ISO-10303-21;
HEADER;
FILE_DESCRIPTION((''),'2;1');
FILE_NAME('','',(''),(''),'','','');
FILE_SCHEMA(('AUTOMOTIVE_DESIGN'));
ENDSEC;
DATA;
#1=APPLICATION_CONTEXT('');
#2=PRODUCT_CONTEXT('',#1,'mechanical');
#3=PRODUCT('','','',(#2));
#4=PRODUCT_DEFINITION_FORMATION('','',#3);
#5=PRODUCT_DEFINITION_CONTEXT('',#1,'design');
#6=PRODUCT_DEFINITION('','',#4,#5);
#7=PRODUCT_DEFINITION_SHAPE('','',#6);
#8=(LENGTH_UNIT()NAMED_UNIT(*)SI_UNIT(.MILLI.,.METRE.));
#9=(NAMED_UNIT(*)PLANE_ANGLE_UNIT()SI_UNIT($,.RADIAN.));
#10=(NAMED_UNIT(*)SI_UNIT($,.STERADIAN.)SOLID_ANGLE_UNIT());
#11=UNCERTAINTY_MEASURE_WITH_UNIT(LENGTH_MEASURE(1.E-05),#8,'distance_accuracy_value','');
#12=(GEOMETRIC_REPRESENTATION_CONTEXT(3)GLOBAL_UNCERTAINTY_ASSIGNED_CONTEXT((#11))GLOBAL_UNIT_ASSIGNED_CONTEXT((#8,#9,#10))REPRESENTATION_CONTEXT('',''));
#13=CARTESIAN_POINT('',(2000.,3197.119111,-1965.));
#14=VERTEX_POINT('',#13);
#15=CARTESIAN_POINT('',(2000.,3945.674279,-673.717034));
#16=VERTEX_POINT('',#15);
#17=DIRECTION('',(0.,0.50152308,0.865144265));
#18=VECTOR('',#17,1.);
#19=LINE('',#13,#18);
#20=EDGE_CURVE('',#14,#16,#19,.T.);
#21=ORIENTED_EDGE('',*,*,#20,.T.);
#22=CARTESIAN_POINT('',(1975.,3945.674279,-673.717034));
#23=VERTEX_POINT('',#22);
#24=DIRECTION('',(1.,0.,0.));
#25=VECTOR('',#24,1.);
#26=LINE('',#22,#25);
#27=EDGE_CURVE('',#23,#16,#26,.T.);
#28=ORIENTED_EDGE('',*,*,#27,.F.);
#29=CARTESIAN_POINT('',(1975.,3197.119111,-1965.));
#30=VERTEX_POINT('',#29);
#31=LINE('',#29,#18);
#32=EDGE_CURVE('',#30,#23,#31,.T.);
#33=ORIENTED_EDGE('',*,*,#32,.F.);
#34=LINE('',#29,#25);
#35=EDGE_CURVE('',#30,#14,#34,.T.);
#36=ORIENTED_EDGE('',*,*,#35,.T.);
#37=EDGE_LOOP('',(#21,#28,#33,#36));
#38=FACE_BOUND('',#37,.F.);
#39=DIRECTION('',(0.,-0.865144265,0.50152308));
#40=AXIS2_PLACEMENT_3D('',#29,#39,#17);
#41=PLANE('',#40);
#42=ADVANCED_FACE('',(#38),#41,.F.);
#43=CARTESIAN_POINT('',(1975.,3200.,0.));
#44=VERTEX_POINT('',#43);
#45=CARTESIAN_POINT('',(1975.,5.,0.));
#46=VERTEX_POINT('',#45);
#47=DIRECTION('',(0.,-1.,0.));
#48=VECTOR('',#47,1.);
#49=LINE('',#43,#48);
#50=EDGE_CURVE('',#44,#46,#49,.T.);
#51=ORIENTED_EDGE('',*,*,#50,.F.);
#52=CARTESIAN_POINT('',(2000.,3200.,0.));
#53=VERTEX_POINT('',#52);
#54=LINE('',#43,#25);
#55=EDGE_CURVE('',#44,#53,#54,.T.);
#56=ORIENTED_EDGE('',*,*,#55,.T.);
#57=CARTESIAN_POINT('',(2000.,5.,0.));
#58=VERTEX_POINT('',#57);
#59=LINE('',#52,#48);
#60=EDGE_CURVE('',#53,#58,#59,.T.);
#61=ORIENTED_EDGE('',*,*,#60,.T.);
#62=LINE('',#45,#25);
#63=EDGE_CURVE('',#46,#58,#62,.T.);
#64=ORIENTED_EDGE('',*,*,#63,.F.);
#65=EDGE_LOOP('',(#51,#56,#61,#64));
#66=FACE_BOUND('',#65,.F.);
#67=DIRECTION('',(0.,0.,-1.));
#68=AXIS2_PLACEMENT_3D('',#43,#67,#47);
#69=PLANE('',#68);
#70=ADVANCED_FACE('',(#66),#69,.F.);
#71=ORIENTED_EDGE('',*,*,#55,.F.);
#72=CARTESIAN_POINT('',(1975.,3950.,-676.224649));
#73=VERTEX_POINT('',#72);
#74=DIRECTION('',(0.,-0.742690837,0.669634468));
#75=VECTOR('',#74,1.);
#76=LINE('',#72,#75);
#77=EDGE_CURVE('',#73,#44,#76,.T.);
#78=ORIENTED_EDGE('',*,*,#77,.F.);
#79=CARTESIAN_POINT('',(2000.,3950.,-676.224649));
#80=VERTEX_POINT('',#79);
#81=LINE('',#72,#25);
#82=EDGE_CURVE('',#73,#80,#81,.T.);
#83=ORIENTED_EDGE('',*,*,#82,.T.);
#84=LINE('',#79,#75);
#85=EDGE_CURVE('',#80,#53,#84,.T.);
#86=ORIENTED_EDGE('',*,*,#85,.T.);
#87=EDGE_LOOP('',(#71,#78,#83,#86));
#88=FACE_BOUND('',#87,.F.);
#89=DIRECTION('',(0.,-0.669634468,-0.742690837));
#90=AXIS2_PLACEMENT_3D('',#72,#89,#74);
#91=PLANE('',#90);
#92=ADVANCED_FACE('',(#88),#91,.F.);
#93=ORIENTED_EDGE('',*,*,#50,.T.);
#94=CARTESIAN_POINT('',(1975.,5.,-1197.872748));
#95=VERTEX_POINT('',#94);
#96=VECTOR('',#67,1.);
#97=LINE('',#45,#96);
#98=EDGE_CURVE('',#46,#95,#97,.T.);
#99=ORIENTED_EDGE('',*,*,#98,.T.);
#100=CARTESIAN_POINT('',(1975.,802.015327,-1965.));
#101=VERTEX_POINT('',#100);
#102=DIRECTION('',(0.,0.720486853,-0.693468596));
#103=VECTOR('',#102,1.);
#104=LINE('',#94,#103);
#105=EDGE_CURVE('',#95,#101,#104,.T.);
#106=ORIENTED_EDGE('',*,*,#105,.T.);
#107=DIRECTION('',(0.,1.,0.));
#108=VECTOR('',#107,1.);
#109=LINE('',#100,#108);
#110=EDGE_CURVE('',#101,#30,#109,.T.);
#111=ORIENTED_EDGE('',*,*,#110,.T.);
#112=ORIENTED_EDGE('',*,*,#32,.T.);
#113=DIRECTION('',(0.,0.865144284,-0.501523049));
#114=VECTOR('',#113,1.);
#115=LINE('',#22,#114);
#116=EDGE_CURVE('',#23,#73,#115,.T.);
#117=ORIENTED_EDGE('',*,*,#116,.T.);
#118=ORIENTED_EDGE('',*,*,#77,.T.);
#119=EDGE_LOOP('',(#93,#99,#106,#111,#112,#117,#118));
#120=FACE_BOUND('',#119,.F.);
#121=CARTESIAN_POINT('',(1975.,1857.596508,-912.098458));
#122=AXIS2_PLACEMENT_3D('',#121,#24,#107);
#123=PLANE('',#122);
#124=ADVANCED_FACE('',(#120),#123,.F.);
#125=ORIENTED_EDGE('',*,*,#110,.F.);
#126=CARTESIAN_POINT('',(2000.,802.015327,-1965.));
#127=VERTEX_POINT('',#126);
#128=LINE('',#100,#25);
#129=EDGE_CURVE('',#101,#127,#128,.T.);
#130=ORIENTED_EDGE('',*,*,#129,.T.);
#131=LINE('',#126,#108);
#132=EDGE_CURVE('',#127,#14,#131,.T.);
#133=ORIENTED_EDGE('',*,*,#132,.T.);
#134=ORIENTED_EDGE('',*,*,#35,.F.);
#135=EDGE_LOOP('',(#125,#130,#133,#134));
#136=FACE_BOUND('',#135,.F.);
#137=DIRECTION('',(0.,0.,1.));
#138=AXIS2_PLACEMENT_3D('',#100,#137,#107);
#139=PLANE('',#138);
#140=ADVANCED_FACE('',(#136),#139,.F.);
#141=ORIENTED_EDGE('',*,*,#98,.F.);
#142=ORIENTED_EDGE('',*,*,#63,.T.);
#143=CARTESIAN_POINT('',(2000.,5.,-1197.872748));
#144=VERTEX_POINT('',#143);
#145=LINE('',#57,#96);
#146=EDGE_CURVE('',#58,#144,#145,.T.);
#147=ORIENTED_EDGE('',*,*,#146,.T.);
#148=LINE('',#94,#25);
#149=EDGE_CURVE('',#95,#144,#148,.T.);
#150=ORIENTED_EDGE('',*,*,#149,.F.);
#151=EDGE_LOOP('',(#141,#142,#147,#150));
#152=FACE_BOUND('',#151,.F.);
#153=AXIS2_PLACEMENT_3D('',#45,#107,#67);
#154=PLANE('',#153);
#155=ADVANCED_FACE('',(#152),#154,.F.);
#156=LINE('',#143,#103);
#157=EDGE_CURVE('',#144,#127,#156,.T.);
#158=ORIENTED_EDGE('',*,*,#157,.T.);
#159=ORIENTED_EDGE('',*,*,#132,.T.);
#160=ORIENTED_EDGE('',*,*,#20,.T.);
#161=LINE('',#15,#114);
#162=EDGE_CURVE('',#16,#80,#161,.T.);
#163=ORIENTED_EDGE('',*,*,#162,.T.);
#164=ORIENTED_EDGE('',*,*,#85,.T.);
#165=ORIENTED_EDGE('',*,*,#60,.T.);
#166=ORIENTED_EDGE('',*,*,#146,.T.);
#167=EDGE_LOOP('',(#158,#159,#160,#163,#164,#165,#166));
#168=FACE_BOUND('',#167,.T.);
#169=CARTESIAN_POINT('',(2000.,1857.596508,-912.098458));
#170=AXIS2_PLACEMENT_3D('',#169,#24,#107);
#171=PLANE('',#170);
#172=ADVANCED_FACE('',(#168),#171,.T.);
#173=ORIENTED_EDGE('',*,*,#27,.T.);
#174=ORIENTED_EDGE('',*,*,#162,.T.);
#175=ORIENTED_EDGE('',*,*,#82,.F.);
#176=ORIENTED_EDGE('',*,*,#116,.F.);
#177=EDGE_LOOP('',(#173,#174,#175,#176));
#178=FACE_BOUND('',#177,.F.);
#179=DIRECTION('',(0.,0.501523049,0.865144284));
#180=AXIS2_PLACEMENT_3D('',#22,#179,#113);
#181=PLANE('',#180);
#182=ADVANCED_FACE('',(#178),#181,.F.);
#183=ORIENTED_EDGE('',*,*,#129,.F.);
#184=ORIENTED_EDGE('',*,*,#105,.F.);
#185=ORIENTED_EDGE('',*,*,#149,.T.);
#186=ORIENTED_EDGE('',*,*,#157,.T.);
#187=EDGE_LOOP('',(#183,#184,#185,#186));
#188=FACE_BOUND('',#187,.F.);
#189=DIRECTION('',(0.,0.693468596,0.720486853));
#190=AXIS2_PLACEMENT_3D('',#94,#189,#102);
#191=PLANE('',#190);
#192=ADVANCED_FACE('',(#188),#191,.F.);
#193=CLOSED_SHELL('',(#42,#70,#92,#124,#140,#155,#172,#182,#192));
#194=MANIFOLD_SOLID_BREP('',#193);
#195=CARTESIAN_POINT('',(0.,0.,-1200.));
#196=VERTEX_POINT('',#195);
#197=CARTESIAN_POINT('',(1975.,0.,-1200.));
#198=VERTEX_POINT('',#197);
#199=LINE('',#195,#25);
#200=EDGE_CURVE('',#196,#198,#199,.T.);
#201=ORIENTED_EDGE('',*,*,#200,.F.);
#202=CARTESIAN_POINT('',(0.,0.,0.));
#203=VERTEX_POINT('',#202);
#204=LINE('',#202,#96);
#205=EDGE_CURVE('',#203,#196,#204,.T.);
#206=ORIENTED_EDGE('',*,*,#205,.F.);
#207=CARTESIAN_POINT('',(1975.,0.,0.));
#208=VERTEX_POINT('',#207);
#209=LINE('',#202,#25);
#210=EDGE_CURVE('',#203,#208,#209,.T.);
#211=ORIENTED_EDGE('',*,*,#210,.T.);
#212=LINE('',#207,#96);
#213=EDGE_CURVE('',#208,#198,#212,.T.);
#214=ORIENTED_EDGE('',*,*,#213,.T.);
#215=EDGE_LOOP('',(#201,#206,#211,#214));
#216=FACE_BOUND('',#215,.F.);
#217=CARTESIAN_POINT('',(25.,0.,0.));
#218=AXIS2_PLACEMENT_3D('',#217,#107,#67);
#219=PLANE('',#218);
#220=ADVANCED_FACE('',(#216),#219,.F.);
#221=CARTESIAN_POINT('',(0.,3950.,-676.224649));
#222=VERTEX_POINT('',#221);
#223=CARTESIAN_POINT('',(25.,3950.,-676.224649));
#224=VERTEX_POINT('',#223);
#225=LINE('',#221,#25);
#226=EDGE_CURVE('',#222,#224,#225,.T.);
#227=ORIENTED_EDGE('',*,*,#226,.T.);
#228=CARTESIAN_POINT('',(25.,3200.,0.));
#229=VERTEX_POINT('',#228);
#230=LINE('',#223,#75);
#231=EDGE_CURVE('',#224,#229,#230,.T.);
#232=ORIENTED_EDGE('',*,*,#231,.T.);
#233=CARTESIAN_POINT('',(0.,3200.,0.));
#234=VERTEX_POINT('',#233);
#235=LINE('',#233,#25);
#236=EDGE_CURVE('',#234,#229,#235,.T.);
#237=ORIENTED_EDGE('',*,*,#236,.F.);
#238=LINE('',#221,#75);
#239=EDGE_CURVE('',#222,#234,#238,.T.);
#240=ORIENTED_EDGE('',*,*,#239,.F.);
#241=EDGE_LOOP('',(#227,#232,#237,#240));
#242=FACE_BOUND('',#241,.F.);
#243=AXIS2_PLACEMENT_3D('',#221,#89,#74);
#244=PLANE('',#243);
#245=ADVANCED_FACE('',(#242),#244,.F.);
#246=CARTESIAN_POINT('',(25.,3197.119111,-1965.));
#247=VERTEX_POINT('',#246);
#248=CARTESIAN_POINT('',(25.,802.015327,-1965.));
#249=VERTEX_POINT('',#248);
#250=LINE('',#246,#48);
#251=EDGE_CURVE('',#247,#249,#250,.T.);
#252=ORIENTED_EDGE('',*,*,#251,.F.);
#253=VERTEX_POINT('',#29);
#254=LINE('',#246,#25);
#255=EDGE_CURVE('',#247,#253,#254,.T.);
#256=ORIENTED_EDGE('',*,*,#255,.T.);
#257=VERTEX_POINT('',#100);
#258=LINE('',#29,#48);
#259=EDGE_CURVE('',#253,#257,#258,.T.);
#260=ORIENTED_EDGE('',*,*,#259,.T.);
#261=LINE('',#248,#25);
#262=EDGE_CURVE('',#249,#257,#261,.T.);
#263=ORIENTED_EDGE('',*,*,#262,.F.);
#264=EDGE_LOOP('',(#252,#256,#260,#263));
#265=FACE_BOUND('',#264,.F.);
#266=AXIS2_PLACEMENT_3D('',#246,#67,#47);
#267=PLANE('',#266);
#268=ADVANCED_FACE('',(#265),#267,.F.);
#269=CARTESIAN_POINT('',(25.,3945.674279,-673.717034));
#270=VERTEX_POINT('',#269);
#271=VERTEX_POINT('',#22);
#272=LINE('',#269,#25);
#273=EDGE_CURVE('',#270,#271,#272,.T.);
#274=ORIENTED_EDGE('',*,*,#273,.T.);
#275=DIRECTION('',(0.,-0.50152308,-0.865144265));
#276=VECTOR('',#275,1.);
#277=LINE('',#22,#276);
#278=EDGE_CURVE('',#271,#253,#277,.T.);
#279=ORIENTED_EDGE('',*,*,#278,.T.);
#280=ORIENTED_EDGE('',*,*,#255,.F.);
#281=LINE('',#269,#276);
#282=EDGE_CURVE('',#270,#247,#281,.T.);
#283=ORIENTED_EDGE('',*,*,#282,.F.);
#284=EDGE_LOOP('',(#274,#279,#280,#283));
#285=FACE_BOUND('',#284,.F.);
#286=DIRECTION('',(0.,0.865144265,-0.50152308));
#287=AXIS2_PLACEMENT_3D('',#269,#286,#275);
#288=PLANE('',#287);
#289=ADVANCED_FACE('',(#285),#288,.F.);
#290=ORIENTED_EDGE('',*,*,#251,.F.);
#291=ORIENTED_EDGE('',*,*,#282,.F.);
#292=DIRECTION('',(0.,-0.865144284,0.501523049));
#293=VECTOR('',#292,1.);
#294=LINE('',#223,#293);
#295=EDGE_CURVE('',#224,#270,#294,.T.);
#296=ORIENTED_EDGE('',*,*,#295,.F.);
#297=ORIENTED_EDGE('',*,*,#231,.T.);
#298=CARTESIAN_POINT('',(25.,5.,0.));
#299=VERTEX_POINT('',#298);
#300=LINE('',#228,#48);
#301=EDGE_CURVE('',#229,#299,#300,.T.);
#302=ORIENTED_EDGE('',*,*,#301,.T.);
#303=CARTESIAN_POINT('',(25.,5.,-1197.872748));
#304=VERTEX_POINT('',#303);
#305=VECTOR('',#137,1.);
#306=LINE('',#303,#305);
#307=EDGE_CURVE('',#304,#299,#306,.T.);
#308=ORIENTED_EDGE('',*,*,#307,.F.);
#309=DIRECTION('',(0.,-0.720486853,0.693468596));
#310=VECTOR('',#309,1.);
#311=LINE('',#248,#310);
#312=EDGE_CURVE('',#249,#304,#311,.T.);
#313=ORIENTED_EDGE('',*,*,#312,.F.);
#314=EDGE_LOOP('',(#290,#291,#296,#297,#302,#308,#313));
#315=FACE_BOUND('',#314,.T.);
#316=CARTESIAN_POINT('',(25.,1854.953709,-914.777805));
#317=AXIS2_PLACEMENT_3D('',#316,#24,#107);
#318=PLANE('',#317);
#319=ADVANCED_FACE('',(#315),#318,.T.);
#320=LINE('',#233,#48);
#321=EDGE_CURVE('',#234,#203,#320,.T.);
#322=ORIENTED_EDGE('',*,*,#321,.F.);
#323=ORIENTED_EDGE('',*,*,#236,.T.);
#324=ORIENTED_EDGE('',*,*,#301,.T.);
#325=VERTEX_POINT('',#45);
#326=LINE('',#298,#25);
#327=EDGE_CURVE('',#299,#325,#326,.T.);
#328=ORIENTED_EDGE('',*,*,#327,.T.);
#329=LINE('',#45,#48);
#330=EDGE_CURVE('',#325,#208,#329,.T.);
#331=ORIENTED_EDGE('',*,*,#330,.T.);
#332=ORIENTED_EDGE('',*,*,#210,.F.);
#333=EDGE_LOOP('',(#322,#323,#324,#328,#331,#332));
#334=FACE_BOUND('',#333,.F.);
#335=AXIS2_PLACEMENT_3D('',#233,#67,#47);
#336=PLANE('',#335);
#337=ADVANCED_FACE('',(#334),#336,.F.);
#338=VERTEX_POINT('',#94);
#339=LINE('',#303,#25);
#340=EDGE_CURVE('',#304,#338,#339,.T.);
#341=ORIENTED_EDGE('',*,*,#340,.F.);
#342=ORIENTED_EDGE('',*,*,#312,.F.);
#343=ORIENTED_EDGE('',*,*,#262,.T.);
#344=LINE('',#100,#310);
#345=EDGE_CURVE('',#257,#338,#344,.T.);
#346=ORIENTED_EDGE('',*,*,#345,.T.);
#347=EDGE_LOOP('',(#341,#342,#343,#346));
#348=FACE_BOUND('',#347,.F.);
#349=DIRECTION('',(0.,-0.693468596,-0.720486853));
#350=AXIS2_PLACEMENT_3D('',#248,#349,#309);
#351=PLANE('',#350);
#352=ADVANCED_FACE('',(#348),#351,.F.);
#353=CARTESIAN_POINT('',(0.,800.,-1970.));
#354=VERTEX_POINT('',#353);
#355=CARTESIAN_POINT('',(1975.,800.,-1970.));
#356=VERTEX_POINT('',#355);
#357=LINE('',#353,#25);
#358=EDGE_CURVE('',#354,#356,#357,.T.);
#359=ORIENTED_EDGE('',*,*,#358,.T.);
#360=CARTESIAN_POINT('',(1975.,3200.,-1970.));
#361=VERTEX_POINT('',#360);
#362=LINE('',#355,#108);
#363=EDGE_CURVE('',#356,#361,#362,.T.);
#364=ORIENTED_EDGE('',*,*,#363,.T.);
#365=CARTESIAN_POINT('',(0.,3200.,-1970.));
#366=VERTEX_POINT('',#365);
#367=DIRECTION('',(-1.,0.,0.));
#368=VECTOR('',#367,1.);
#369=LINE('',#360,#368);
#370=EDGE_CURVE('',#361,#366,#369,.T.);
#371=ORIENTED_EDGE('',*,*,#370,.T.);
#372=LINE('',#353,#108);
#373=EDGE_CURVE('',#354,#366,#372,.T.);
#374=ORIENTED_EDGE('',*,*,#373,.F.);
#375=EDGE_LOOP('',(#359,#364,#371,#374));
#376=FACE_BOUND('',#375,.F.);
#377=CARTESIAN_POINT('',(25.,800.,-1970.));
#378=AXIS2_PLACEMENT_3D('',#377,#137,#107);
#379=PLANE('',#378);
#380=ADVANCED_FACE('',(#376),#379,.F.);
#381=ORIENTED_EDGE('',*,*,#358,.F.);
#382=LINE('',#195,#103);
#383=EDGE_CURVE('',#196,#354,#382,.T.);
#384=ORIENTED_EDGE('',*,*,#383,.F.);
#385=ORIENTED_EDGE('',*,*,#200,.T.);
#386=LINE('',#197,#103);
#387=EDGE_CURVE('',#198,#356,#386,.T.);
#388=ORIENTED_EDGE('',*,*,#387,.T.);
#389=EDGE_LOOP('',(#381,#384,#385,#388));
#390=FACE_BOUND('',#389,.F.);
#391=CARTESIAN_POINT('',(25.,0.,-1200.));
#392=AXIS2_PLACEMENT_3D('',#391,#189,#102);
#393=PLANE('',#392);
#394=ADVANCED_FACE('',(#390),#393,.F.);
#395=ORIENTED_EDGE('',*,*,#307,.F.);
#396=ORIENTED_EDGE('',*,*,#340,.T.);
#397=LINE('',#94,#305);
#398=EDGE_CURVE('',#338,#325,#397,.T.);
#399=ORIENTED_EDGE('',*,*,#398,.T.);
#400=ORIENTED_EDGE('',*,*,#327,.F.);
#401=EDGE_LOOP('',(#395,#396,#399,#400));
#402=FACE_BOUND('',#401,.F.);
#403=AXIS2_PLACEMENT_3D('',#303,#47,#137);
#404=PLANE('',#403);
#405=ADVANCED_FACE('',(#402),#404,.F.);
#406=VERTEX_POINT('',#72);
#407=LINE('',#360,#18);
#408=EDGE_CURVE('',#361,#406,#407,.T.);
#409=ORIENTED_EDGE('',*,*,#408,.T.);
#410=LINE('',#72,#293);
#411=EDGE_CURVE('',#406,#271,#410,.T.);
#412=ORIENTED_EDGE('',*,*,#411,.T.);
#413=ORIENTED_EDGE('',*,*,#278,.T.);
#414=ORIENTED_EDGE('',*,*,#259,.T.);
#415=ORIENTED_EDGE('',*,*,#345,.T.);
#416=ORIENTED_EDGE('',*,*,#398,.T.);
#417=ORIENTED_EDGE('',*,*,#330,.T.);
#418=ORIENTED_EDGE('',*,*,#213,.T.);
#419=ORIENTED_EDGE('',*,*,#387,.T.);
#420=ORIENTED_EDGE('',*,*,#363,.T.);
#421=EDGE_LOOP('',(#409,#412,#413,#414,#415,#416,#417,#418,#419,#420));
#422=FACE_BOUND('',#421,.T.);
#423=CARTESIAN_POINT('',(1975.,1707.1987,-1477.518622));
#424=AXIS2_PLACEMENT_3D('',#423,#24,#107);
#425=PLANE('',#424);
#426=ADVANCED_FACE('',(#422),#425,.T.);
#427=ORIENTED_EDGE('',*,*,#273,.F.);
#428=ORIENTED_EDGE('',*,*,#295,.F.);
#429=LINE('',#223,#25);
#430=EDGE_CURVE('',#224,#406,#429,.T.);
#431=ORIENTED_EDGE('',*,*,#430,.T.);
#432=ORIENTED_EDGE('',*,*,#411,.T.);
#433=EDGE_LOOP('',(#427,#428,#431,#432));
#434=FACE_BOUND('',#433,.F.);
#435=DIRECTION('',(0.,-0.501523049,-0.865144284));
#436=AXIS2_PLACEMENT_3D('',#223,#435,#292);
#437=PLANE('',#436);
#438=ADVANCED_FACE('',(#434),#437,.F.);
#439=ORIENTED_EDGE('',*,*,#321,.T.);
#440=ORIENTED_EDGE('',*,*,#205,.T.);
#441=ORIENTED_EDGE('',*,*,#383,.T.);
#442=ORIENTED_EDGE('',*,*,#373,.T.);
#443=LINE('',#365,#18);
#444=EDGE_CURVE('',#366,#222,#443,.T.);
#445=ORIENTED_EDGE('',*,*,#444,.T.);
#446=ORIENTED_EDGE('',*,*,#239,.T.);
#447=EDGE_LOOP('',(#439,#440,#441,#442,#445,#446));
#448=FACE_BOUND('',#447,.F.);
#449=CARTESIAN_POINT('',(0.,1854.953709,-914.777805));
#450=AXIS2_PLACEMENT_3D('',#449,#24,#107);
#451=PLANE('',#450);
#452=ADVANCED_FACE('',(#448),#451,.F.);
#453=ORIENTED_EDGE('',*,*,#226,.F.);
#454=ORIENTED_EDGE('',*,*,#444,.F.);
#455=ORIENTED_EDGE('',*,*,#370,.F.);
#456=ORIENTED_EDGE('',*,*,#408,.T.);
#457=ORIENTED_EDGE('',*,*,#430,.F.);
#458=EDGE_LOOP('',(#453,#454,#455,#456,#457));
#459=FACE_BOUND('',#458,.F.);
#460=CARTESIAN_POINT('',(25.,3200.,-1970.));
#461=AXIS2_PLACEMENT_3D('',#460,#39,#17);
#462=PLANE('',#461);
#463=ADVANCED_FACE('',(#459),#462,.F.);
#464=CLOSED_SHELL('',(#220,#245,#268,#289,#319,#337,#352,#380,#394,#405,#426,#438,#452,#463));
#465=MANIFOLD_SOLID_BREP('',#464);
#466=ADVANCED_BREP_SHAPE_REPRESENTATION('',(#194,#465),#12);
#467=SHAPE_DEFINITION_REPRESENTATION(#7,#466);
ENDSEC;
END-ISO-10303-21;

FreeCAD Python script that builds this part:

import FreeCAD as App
import Part
import Sketcher

V = App.Vector
Q = App.Units.Quantity


def add_polygon(sketch, points):
    """Adds a closed chain of lines whose ends are joined by coincident constraints."""
    first, n = sketch.GeometryCount, len(points)
    for a, b in zip(points, points[1:] + points[:1]):
        sketch.addGeometry(Part.LineSegment(App.Vector(*a, 0), App.Vector(*b, 0)), False)
    for i in range(n):
        sketch.addConstraint(Sketcher.Constraint("Coincident", first + i, 2, first + (i + 1) % n, 1))

doc = App.newDocument("Part")
params = doc.addObject("Spreadsheet::Sheet", "Params")
for row, (alias, value) in enumerate([
    ("sketch1_width", "3200 mm"),
    ("sketch1_width2", "2400 mm"),
    ("sketch1_height", "1200 mm"),
    ("pad1_length", "25 mm"),
    ("sketch2_width", "5 mm"),
    ("sketch2_width2", "2400 mm"),
    ("sketch2_height", "1200 mm"),
    ("sketch2_length", "5 mm"),
    ("pad2_length", "1950 mm"),
    ("sketch3_width", "3195 mm"),
    ("sketch3_length", "5 mm"),
    ("pad3_length", "25 mm"),
], start=1):
    params.set(f"A{row}", alias)
    params.set(f"B{row}", "=" + value)
    params.setAlias(f"B{row}", alias)

body = doc.addObject("PartDesign::Body", "Body")

# Sketch on YZ plane
sketch1 = body.newObject("Sketcher::SketchObject", "Sketch")
sketch1.AttachmentSupport = (doc.getObject("YZ_Plane"), [""])
sketch1.MapMode = "FlatFace"
add_polygon(sketch1, [(3200, 0), (0, 0), (0, -1200), (800, -1970), (3200, -1970), (3950, -676)])  # lines 0-5
sketch1.addConstraint([
    Sketcher.Constraint("Horizontal", 0),
    Sketcher.Constraint("Vertical", 1),
    Sketcher.Constraint("Horizontal", 3),
    Sketcher.Constraint("Coincident", 0, 2, -1, 1),
    Sketcher.Constraint("Vertical", 3, 2, 5, 2),
    Sketcher.Constraint("DistanceX", 0, 2, 0, 1, Q("3200 mm")),
    Sketcher.Constraint("DistanceX", 3, 1, 3, 2, Q("2400 mm")),
    Sketcher.Constraint("DistanceY", 1, 2, 1, 1, Q("1200 mm")),
    Sketcher.Constraint("DistanceY", 2, 2, -1, 1, Q("1970 mm")),
    Sketcher.Constraint("DistanceX", -1, 1, 4, 2, Q("3950 mm")),
    Sketcher.Constraint("Distance", 5, Q("1009.841461 mm")),
])
sketch1.setExpression("Constraints[11]", "Params.sketch1_width")
sketch1.setExpression("Constraints[12]", "Params.sketch1_width2")
sketch1.setExpression("Constraints[13]", "Params.sketch1_height")
pad1 = body.newObject("PartDesign::Pad", "Pad")
pad1.Profile = sketch1
pad1.setExpression("Length", "Params.pad1_length")

# Sketch on YZ plane
sketch2 = body.newObject("Sketcher::SketchObject", "Sketch001")
sketch2.AttachmentSupport = (doc.getObject("YZ_Plane"), [""])
sketch2.MapMode = "FlatFace"
sketch2.AttachmentOffset = App.Placement(V(0, 0, 25), App.Rotation())
add_polygon(sketch2, [(3945.7, -673.7), (3197.1, -1965), (802, -1965), (5, -1197.9), (5, 0), (0, 0), (0, -1200), (800, -1970), (3200, -1970), (3950, -676.2)])  # lines 0-9
sketch2.addConstraint([
    Sketcher.Constraint("Horizontal", 1),
    Sketcher.Constraint("Vertical", 3),
    Sketcher.Constraint("Horizontal", 4),
    Sketcher.Constraint("Vertical", 5),
    Sketcher.Constraint("Horizontal", 7),
    Sketcher.Constraint("Coincident", 4, 2, -1, 1),
    Sketcher.Constraint("Parallel", 2, 6),
    Sketcher.Constraint("Parallel", 0, 8),
    Sketcher.Constraint("Perpendicular", 8, 9),
    Sketcher.Constraint("DistanceX", 4, 2, 4, 1, Q("5 mm")),
    Sketcher.Constraint("DistanceX", 7, 1, 7, 2, Q("2400 mm")),
    Sketcher.Constraint("DistanceY", 5, 2, 5, 1, Q("1200 mm")),
    Sketcher.Constraint("Distance", 9, Q("5 mm")),
    Sketcher.Constraint("DistanceY", 0, 2, -1, 1, Q("1965 mm")),
    Sketcher.Constraint("DistanceX", -1, 1, 6, 2, Q("800 mm")),
    Sketcher.Constraint("DistanceY", 6, 2, -1, 1, Q("1970 mm")),
    Sketcher.Constraint("DistanceX", -1, 1, 8, 2, Q("3950 mm")),
    Sketcher.Constraint("DistanceY", 3, 1, 3, 2, Q("1197.872748 mm")),
    Sketcher.Constraint("DistanceY", 2, 2, 8, 2, Q("521.648099 mm")),
])
sketch2.setExpression("Constraints[19]", "Params.sketch2_width")
sketch2.setExpression("Constraints[20]", "Params.sketch2_width2")
sketch2.setExpression("Constraints[21]", "Params.sketch2_height")
sketch2.setExpression("Constraints[22]", "Params.sketch2_length")
pad2 = body.newObject("PartDesign::Pad", "Pad001")
pad2.Profile = sketch2
pad2.setExpression("Length", "Params.pad2_length")
body2 = doc.addObject("PartDesign::Body", "Body001")

# Sketch on YZ plane
sketch3 = body2.newObject("Sketcher::SketchObject", "Sketch002")
sketch3.AttachmentSupport = (doc.getObject("YZ_Plane001"), [""])
sketch3.MapMode = "FlatFace"
sketch3.AttachmentOffset = App.Placement(V(0, 0, 1975), App.Rotation())
add_polygon(sketch3, [(3950, -676.2), (3200, 0), (5, 0), (5, -1197.9), (802, -1965), (3197.1, -1965), (3945.7, -673.7)])  # lines 0-6
sketch3.addConstraint([
    Sketcher.Constraint("Horizontal", 1),
    Sketcher.Constraint("Vertical", 2),
    Sketcher.Constraint("Horizontal", 4),
    Sketcher.Constraint("PointOnObject", 0, 2, -1),
    Sketcher.Constraint("Perpendicular", 5, 6),
    Sketcher.Constraint("DistanceX", 1, 2, 1, 1, Q("3195 mm")),
    Sketcher.Constraint("Distance", 6, Q("5 mm")),
    Sketcher.Constraint("DistanceX", -1, 1, 0, 2, Q("3200 mm")),
    Sketcher.Constraint("DistanceY", 3, 2, -1, 1, Q("1965 mm")),
    Sketcher.Constraint("DistanceX", -1, 1, 6, 2, Q("3950 mm")),
    Sketcher.Constraint("DistanceY", 2, 2, 2, 1, Q("1197.872748 mm")),
    Sketcher.Constraint("DistanceY", 2, 2, 6, 2, Q("521.648099 mm")),
    Sketcher.Constraint("DistanceX", 4, 1, 4, 2, Q("2395.103784 mm")),
    Sketcher.Constraint("DistanceX", -1, 1, 4, 2, Q("3197.119111 mm")),
])
sketch3.setExpression("Constraints[12]", "Params.sketch3_width")
sketch3.setExpression("Constraints[13]", "Params.sketch3_length")
pad3 = body2.newObject("PartDesign::Pad", "Pad002")
pad3.Profile = sketch3
pad3.setExpression("Length", "Params.pad3_length")

doc.recompute()
